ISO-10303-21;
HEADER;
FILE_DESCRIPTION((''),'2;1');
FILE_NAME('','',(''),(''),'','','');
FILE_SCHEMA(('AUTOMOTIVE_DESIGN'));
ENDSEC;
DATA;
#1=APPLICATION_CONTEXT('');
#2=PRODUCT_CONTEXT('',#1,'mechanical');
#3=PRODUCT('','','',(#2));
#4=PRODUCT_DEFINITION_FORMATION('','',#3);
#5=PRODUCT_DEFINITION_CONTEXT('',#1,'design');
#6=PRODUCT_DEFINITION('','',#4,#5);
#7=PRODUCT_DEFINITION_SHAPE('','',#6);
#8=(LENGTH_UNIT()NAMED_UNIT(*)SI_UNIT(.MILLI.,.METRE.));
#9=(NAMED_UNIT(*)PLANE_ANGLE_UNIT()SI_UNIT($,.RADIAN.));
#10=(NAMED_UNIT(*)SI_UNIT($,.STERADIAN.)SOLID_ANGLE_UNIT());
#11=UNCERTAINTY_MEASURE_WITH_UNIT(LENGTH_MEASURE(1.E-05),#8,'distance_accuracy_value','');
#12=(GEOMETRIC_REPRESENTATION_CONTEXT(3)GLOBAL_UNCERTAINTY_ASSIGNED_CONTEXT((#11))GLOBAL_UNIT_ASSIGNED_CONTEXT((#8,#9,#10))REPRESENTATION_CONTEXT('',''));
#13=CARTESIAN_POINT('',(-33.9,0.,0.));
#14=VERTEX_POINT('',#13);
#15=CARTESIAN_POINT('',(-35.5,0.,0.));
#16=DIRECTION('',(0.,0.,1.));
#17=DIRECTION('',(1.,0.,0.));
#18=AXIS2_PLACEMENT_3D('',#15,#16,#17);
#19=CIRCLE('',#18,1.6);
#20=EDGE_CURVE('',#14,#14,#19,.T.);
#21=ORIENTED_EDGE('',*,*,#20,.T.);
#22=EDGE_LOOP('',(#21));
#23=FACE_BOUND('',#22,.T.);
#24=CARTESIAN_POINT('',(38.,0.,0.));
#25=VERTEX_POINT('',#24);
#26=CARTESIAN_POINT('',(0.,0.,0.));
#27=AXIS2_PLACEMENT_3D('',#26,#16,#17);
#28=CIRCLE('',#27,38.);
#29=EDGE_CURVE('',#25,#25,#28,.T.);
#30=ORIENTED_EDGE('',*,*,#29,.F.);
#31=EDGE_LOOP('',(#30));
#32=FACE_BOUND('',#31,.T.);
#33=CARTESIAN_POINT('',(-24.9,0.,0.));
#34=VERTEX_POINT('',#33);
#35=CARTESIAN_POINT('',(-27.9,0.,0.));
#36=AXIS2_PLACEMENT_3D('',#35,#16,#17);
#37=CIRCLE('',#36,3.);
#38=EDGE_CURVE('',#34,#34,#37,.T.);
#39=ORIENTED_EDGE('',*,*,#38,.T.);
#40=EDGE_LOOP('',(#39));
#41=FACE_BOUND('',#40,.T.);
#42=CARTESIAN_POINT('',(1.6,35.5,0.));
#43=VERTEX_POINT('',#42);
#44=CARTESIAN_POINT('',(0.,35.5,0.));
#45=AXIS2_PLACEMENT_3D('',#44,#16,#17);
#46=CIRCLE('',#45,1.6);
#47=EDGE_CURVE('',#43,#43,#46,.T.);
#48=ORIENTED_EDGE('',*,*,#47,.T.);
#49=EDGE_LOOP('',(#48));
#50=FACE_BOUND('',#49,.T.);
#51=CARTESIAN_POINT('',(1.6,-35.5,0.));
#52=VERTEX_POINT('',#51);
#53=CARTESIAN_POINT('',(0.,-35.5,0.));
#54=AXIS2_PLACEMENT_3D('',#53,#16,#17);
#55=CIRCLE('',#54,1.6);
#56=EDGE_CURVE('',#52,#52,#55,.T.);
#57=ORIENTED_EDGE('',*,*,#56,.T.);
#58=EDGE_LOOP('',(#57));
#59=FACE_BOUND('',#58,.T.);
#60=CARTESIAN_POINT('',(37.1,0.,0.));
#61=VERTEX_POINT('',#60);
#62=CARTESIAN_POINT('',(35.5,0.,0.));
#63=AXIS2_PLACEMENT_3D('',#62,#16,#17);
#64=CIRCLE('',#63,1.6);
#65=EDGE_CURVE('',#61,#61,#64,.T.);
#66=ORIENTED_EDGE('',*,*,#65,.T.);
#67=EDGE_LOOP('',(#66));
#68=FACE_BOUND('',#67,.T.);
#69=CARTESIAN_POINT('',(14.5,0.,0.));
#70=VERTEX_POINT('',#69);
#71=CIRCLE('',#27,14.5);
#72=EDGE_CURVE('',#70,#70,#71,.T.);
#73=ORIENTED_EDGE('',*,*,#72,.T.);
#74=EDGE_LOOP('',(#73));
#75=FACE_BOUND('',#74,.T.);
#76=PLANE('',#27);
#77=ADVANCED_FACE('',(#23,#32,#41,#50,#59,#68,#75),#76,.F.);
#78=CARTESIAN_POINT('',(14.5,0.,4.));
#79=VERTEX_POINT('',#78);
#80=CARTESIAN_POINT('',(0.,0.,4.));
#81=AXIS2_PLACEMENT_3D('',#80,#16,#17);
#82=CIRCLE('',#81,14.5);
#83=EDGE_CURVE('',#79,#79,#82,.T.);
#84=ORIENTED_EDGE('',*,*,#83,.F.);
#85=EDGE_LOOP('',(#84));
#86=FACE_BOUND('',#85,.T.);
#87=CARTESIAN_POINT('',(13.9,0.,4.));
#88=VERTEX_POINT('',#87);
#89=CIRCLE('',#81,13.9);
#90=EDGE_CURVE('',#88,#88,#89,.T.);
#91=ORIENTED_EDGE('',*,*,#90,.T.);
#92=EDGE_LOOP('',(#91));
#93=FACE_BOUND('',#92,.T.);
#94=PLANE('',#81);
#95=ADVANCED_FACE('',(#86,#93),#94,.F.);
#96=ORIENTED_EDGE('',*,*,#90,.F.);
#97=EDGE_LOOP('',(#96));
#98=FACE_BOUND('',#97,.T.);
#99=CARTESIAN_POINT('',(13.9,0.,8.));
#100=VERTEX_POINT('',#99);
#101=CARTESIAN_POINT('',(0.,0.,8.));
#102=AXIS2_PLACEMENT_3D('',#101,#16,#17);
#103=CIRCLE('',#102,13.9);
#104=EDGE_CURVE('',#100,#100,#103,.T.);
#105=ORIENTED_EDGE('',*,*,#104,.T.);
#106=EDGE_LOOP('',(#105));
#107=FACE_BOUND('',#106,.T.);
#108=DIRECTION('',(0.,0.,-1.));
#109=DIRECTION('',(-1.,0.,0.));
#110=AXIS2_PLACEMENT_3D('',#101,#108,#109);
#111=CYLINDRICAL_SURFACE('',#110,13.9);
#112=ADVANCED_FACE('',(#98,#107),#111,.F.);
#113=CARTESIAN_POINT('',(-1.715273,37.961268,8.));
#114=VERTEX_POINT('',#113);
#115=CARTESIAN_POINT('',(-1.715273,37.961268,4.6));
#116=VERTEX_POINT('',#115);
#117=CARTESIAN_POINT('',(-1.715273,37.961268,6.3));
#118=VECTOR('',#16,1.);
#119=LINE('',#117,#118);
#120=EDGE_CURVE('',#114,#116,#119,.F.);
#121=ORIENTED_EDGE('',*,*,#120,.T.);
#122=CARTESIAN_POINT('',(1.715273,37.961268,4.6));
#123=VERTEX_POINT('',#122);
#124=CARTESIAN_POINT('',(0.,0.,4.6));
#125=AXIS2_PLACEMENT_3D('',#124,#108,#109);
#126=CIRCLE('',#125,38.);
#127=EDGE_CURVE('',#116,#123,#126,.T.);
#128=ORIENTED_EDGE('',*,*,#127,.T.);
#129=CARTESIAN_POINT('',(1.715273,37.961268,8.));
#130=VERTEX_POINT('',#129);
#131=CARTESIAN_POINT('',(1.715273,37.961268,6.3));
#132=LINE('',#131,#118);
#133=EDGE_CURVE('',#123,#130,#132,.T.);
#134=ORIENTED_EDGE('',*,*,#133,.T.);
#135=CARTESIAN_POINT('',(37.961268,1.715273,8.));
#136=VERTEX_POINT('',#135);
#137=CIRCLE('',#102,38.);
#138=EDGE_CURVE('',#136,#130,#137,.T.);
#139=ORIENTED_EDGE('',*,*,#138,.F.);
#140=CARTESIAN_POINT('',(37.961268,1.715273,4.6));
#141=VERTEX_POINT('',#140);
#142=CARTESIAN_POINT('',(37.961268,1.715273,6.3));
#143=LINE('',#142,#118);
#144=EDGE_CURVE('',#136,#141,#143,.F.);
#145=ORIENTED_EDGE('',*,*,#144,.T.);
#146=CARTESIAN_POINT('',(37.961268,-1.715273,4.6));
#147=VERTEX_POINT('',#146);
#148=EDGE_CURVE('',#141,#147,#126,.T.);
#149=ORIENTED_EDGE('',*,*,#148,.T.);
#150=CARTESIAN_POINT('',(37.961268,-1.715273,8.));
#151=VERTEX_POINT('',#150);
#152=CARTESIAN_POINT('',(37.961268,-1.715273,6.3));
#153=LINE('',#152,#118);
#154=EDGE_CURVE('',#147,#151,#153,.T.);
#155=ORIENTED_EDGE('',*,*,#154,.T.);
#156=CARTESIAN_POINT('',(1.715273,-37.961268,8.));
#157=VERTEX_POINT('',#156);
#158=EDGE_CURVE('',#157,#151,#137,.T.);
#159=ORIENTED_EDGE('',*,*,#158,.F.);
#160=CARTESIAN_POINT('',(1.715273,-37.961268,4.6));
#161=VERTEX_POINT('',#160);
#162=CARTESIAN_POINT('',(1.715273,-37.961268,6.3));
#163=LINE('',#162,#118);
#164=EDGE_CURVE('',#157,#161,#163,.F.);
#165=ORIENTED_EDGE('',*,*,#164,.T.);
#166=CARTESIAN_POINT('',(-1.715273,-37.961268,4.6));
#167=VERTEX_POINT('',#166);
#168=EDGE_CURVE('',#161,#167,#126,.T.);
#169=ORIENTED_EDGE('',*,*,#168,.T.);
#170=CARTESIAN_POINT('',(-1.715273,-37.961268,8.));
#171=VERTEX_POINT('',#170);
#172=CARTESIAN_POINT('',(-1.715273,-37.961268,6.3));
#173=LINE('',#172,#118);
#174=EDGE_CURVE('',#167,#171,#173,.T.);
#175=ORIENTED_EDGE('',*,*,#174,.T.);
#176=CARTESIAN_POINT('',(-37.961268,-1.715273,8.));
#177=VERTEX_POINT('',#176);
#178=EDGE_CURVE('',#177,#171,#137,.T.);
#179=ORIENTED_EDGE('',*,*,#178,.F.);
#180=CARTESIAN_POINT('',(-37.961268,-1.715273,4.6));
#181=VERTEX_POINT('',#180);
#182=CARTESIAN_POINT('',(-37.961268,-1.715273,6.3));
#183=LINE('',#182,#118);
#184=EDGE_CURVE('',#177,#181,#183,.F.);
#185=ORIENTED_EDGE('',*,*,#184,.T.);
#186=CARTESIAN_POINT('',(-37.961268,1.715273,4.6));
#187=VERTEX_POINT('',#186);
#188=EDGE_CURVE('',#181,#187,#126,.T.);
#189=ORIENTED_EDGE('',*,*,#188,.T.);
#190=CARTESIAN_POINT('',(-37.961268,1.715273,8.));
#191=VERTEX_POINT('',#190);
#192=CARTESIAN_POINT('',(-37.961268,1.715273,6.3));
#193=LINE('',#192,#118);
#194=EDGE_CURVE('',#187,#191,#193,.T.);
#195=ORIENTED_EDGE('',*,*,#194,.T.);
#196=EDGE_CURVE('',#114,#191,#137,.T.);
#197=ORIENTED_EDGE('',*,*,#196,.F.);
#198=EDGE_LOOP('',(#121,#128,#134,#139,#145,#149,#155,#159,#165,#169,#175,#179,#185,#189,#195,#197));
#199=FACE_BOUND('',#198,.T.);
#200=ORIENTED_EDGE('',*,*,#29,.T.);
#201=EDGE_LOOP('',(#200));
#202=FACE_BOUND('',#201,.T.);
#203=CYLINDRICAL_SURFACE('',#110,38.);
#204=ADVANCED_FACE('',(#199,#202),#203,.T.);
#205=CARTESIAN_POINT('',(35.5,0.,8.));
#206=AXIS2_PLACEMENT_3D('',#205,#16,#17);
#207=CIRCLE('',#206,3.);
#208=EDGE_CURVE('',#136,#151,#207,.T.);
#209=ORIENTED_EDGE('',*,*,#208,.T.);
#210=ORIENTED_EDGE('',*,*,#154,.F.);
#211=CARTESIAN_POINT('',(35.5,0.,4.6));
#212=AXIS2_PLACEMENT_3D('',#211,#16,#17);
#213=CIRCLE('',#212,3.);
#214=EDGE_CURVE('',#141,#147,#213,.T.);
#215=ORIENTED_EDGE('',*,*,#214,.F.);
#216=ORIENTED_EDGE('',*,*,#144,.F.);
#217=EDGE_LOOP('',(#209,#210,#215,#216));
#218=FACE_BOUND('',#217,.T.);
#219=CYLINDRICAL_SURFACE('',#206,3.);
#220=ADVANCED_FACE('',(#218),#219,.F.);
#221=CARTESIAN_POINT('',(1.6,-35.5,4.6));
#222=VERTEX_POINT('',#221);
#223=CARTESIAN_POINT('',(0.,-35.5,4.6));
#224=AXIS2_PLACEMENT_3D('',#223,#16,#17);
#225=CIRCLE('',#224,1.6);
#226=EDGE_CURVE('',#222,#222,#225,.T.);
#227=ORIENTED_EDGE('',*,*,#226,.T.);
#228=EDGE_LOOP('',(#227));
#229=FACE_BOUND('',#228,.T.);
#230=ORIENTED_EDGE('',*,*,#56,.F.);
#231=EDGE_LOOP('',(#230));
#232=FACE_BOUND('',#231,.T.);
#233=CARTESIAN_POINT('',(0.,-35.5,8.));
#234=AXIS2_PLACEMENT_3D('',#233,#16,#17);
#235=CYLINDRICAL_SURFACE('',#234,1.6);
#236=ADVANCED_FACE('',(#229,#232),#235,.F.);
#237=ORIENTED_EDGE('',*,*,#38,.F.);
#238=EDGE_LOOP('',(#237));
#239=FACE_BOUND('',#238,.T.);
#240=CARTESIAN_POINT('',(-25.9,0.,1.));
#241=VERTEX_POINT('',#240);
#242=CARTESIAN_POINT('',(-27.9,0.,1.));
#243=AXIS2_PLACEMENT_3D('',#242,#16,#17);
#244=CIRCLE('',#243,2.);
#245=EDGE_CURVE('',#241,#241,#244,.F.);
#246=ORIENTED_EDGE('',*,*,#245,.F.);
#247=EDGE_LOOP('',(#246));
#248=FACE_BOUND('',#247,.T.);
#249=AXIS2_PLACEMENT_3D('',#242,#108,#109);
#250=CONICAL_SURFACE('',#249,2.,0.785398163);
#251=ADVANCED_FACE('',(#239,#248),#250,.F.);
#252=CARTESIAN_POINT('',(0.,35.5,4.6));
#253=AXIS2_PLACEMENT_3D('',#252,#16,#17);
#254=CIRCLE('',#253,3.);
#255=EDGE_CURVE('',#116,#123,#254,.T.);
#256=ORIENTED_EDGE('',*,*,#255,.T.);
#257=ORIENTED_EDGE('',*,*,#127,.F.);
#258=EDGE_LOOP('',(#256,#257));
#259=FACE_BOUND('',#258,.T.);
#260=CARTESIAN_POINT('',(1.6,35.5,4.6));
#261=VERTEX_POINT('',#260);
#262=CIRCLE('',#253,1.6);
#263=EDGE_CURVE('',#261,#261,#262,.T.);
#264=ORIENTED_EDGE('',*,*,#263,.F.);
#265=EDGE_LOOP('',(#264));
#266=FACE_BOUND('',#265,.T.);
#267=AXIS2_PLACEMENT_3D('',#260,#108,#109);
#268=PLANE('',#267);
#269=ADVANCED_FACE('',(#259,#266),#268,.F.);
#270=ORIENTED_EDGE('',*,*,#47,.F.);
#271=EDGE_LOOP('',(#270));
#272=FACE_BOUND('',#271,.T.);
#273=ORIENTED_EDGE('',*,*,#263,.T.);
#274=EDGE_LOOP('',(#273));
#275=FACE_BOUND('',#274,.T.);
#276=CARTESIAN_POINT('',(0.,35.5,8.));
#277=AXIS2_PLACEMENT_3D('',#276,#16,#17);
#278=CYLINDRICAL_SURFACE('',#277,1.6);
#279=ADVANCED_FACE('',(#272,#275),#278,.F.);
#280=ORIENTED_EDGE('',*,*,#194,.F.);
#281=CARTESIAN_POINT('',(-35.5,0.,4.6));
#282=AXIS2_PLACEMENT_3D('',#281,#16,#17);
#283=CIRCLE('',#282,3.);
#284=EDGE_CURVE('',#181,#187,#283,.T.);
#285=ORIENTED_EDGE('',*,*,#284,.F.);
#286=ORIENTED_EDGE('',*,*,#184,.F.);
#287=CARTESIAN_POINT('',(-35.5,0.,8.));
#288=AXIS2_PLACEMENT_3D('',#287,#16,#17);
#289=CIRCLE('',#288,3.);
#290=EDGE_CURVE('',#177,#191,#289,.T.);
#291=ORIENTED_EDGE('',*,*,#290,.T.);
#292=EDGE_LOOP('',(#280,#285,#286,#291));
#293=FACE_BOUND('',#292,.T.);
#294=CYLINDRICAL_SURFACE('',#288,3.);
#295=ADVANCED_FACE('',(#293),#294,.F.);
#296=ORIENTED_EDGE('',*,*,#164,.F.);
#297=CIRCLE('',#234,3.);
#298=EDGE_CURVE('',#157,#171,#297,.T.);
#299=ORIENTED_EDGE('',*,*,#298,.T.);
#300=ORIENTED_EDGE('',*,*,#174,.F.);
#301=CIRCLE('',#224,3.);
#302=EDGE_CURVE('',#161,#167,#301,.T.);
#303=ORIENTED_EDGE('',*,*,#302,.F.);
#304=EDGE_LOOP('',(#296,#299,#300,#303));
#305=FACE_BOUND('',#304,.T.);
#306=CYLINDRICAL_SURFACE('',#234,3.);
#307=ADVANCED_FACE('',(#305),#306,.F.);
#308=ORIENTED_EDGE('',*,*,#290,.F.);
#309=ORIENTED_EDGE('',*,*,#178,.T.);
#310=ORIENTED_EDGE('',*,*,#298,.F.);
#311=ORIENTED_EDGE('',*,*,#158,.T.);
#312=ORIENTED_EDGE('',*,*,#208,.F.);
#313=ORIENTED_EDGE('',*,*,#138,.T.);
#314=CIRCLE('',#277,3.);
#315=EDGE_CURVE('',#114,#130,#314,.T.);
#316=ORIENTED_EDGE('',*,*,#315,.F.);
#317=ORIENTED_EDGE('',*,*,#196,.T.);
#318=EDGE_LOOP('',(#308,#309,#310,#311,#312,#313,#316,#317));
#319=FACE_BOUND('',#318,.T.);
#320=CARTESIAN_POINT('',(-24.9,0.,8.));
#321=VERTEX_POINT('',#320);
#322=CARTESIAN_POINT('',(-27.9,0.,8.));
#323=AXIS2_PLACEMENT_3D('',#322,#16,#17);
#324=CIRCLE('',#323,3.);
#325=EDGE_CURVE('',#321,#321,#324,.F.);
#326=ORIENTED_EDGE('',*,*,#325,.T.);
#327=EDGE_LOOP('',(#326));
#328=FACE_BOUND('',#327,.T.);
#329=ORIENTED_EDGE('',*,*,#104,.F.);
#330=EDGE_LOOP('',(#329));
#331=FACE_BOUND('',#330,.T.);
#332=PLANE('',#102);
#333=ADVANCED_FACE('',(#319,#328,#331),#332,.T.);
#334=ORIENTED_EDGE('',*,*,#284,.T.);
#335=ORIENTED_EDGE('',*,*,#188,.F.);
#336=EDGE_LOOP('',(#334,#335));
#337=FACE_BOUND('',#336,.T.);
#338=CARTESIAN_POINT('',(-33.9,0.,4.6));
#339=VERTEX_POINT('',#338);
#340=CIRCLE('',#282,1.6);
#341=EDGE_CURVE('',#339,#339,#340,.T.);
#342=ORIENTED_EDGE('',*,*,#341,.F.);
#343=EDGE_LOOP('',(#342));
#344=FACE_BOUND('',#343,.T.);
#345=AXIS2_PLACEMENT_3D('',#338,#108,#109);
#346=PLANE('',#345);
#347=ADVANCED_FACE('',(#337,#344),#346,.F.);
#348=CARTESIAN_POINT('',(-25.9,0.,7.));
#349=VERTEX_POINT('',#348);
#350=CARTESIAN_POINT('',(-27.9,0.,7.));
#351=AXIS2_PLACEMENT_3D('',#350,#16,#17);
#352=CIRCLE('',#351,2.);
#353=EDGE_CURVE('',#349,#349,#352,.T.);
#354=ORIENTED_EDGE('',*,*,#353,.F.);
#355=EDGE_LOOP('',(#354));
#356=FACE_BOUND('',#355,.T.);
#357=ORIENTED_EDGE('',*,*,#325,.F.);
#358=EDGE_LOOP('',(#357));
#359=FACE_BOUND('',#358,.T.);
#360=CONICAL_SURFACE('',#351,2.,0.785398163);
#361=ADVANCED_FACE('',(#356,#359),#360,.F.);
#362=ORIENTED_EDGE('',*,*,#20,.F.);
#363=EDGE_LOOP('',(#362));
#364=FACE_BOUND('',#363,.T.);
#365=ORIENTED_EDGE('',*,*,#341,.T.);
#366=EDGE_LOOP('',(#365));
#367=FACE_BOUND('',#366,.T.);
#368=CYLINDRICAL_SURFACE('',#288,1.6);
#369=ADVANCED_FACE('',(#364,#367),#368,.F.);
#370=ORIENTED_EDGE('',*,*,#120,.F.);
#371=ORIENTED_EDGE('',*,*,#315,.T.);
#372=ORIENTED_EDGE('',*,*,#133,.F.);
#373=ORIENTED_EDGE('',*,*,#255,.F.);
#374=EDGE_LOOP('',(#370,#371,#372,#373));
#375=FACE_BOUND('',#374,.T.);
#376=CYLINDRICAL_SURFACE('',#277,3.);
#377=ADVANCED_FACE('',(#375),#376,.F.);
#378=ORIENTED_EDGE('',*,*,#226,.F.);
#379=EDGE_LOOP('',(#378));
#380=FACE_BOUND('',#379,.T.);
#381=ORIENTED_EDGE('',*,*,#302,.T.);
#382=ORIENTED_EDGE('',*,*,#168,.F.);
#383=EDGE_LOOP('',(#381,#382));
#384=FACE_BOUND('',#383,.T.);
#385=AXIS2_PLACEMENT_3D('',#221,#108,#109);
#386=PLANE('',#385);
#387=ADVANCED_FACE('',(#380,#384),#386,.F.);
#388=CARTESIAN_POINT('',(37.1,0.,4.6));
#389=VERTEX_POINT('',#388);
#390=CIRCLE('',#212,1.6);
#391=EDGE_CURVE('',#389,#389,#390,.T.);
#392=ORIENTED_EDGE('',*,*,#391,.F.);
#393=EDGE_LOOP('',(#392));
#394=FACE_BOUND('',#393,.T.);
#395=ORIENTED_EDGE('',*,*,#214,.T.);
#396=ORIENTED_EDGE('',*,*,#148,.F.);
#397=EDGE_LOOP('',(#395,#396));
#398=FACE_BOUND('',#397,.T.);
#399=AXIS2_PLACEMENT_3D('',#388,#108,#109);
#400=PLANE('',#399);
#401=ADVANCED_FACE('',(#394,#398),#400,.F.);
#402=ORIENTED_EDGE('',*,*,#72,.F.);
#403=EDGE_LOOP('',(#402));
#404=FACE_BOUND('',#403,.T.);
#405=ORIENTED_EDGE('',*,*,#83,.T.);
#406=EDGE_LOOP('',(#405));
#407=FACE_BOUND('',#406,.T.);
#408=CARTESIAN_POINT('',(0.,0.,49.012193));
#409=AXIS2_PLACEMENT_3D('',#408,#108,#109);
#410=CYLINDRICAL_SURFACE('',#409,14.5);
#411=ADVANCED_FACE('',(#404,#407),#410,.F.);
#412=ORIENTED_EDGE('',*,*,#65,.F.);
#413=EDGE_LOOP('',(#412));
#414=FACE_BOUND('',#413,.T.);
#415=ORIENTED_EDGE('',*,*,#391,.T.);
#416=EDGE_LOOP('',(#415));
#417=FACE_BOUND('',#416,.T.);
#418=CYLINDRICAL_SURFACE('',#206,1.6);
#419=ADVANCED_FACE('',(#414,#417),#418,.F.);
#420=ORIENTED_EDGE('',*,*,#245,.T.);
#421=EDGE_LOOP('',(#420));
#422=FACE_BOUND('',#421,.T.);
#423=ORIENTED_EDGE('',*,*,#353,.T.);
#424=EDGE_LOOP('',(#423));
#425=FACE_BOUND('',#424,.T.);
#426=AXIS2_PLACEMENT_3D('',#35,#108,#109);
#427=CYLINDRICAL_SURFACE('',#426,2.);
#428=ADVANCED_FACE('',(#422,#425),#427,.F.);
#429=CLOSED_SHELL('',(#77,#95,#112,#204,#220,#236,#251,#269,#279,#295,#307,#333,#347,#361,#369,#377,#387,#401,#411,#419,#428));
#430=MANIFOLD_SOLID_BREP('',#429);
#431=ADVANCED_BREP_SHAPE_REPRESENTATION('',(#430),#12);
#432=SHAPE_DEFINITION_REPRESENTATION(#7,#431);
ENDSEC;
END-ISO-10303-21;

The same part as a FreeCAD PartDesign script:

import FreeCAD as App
import Part
import Sketcher
from FreeCAD import Vector


def edges_at(feature, points):
    """Names of the edges that pass closest to the given points."""
    edges = feature.Shape.Edges
    near = lambda p: min(range(len(edges)), key=lambda i: edges[i].distToShape(Part.Vertex(*p))[0])
    return sorted({f"Edge{near(p) + 1}" for p in points})

doc = App.newDocument("Part")
params = doc.addObject("Spreadsheet::Sheet", "Params")
for row, (alias, value) in enumerate([
    ("sketch1_diameter", "76 mm"),
    ("sketch1_diameter2", "27.8 mm"),
    ("pad1_length", "8 mm"),
    ("sketch2_diameter", "3.2 mm"),
    ("hole_diameter", "3.2 mm"),
    ("hole_cbore_diameter", "6 mm"),
    ("hole_cbore_depth", "3.4 mm"),
    ("sketch3_diameter", "4 mm"),
    ("hole2_diameter", "4 mm"),
    ("chamfer_size", "1 mm"),
    ("sketch4_diameter", "29 mm"),
    ("pocket1_length", "4 mm"),
], start=1):
    params.set(f"A{row}", alias)
    params.set(f"B{row}", "=" + value)
    params.setAlias(f"B{row}", alias)

body = doc.addObject("PartDesign::Body", "Body")

# Sketch on XY plane
sketch1 = body.newObject("Sketcher::SketchObject", "Sketch")
sketch1.AttachmentSupport = (doc.getObject("XY_Plane"), [""])
sketch1.MapMode = "FlatFace"
sketch1.addGeometry(Part.Circle(Vector(0, 0, 0), Vector(0, 0, 1), 38), False)
sketch1.addGeometry(Part.Circle(Vector(0, 0, 0), Vector(0, 0, 1), 14), False)
sketch1.addConstraint(Sketcher.Constraint("Coincident", 0, 3, -1, 1))
sketch1.addConstraint(Sketcher.Constraint("Coincident", 1, 3, -1, 1))
sketch1.addConstraint(Sketcher.Constraint("Diameter", 0, 76.0))
sketch1.addConstraint(Sketcher.Constraint("Diameter", 1, 27.8))
sketch1.setExpression("Constraints[2]", "Params.sketch1_diameter")
sketch1.setExpression("Constraints[3]", "Params.sketch1_diameter2")
pad1 = body.newObject("PartDesign::Pad", "Pad")
pad1.Profile = sketch1
pad1.setExpression("Length", "Params.pad1_length")

# Sketch on XY plane
sketch2 = body.newObject("Sketcher::SketchObject", "Sketch001")
sketch2.AttachmentSupport = (doc.getObject("XY_Plane"), [""])
sketch2.MapMode = "FlatFace"
sketch2.AttachmentOffset = App.Placement(Vector(0, 0, 8), App.Rotation())
sketch2.addGeometry(Part.Circle(Vector(0, 35.5, 0), Vector(0, 0, 1), 1.6), False)
sketch2.addGeometry(Part.Circle(Vector(35.5, 0, 0), Vector(0, 0, 1), 1.6), False)
sketch2.addGeometry(Part.Circle(Vector(0, -35.5, 0), Vector(0, 0, 1), 1.6), False)
sketch2.addGeometry(Part.Circle(Vector(-35.5, 0, 0), Vector(0, 0, 1), 1.6), False)
sketch2.addConstraint(Sketcher.Constraint("Equal", 0, 1))
sketch2.addConstraint(Sketcher.Constraint("Equal", 1, 2))
sketch2.addConstraint(Sketcher.Constraint("Equal", 2, 3))
sketch2.addConstraint(Sketcher.Constraint("Symmetric", 0, 3, 2, 3, -1, 1))
sketch2.addConstraint(Sketcher.Constraint("Symmetric", 1, 3, 3, 3, -1, 1))
sketch2.addConstraint(Sketcher.Constraint("PointOnObject", 0, 3, -2))
sketch2.addConstraint(Sketcher.Constraint("PointOnObject", 1, 3, -1))
sketch2.addConstraint(Sketcher.Constraint("Diameter", 0, 3.2))
sketch2.addConstraint(Sketcher.Constraint("DistanceY", 2, 3, 0, 3, 71.0))
sketch2.addConstraint(Sketcher.Constraint("DistanceX", 3, 3, 1, 3, 71.0))
sketch2.setExpression("Constraints[7]", "Params.sketch2_diameter")
doc.recompute()
hole = body.newObject("PartDesign::Hole", "Hole")
hole.Profile = sketch2
hole.ThreadType = "None"
hole.setExpression("Diameter", "Params.hole_diameter")
hole.DepthType = "ThroughAll"
hole.HoleCutType = "Counterbore"
hole.setExpression("HoleCutDiameter", "Params.hole_cbore_diameter")
hole.setExpression("HoleCutDepth", "Params.hole_cbore_depth")

# Sketch on XY plane
sketch3 = body.newObject("Sketcher::SketchObject", "Sketch002")
sketch3.AttachmentSupport = (doc.getObject("XY_Plane"), [""])
sketch3.MapMode = "FlatFace"
sketch3.addGeometry(Part.Circle(Vector(-27.9, 0, 0), Vector(0, 0, 1), 2), False)
sketch3.addConstraint(Sketcher.Constraint("PointOnObject", 0, 3, -1))
sketch3.addConstraint(Sketcher.Constraint("Diameter", 0, 4.0))
sketch3.addConstraint(Sketcher.Constraint("DistanceX", 0, 3, -1, 1, 27.9))
sketch3.setExpression("Constraints[1]", "Params.sketch3_diameter")
doc.recompute()
hole2 = body.newObject("PartDesign::Hole", "Hole001")
hole2.Profile = sketch3
hole2.ThreadType = "None"
hole2.setExpression("Diameter", "Params.hole2_diameter")
hole2.DepthType = "ThroughAll"
hole2.Reversed = True
doc.recompute()

chamfer = body.newObject("PartDesign::Chamfer", "Chamfer")
chamfer.Base = (hole2, edges_at(hole2, [(-29.9, 0, 0), (-29.9, 0, 8)]))
chamfer.setExpression("Size", "Params.chamfer_size")

# Sketch on XY plane
sketch4 = body.newObject("Sketcher::SketchObject", "Sketch003")
sketch4.AttachmentSupport = (doc.getObject("XY_Plane"), [""])
sketch4.MapMode = "FlatFace"
sketch4.addGeometry(Part.Circle(Vector(0, 0, 0), Vector(0, 0, 1), 14), False)
sketch4.addConstraint(Sketcher.Constraint("Coincident", 0, 3, -1, 1))
sketch4.addConstraint(Sketcher.Constraint("Diameter", 0, 29.0))
sketch4.setExpression("Constraints[1]", "Params.sketch4_diameter")
pocket1 = body.newObject("PartDesign::Pocket", "Pocket")
pocket1.Profile = sketch4
pocket1.setExpression("Length", "Params.pocket1_length")
pocket1.Reversed = True

doc.recompute()
